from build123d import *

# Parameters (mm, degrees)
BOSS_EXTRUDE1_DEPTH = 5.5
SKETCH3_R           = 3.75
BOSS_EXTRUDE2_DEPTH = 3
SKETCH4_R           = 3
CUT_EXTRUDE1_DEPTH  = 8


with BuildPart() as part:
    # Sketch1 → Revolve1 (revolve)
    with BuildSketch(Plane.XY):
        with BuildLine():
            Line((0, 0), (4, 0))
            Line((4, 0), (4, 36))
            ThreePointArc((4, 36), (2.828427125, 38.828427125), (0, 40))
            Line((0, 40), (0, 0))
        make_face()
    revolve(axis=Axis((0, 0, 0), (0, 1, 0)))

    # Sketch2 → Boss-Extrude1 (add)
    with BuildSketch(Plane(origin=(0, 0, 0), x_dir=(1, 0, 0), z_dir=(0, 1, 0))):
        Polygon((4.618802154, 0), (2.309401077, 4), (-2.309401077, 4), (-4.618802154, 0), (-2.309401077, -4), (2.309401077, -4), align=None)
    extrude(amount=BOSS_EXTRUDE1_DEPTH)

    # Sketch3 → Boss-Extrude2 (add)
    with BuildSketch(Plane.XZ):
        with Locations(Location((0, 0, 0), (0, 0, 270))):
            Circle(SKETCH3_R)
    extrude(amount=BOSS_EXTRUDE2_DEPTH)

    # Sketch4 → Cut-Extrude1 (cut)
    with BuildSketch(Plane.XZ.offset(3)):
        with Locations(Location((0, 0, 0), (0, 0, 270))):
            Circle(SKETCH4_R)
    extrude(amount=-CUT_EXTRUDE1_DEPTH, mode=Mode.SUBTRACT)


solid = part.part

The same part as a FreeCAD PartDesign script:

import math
import FreeCAD as App
import Part
import Sketcher
Q = App.Units.Quantity


def add_polygon(sketch, points):
    """Adds a closed chain of lines whose ends are joined by coincident constraints."""
    first, n = sketch.GeometryCount, len(points)
    for a, b in zip(points, points[1:] + points[:1]):
        sketch.addGeometry(Part.LineSegment(App.Vector(*a, 0), App.Vector(*b, 0)), False)
    for i in range(n):
        sketch.addConstraint(Sketcher.Constraint("Coincident", first + i, 2, first + (i + 1) % n, 1))

doc = App.newDocument("Part")
body = doc.addObject("PartDesign::Body", "Body")

sketch1 = body.newObject("Sketcher::SketchObject", "Sketch")
sketch1.AttachmentSupport = (doc.getObject("XY_Plane"), [""])
sketch1.MapMode = "FlatFace"
sketch1.addGeometry(Part.LineSegment(App.Vector(0, 0, 0), App.Vector(4, 0, 0)), False)
sketch1.addGeometry(Part.LineSegment(App.Vector(4, 0, 0), App.Vector(4, 36, 0)), False)
sketch1.addGeometry(Part.ArcOfCircle(Part.Circle(App.Vector(0, 36, 0), App.Vector(0, 0, 1), 4), math.radians(0), math.radians(90)), False)
sketch1.addGeometry(Part.LineSegment(App.Vector(0, 40, 0), App.Vector(0, 0, 0)), False)
sketch1.addConstraint(Sketcher.Constraint("Coincident", 0, 2, 1, 1))
sketch1.addConstraint(Sketcher.Constraint("Tangent", 1, 2, 2, 1))
sketch1.addConstraint(Sketcher.Constraint("Coincident", 2, 2, 3, 1))
sketch1.addConstraint(Sketcher.Constraint("Coincident", 3, 2, 0, 1))
sketch1.addConstraint(Sketcher.Constraint("Horizontal", 0))
sketch1.addConstraint(Sketcher.Constraint("Vertical", 1))
sketch1.addConstraint(Sketcher.Constraint("Vertical", 3))
sketch1.addConstraint(Sketcher.Constraint("Coincident", 3, 2, -1, 1))
sketch1.addConstraint(Sketcher.Constraint("PointOnObject", 2, 3, -2))
sketch1.addConstraint(Sketcher.Constraint("Radius", 2, 4.0))
sketch1.addConstraint(Sketcher.Constraint("DistanceY", 1, 1, 1, 2, 36.0))
revolution = body.newObject("PartDesign::Revolution", "Revolution")
revolution.Profile = sketch1
revolution.ReferenceAxis = (sketch1, ["V_Axis"])
revolution.Angle = 360

sketch2 = body.newObject("Sketcher::SketchObject", "Sketch001")
sketch2.AttachmentSupport = (doc.getObject("XZ_Plane"), [""])
sketch2.MapMode = "FlatFace"
add_polygon(sketch2, [(4.6, 0), (2.3, -4), (-2.3, -4), (-4.6, 0), (-2.3, 4), (2.3, 4)])
sketch2.addConstraint(Sketcher.Constraint("Horizontal", 1))
sketch2.addConstraint(Sketcher.Constraint("Horizontal", 4))
sketch2.addConstraint(Sketcher.Constraint("Symmetric", 0, 2, 3, 2, -1, 1))
sketch2.addConstraint(Sketcher.Constraint("Symmetric", 2, 2, 5, 2, -1, 1))
sketch2.addConstraint(Sketcher.Constraint("PointOnObject", 2, 2, -1))
sketch2.addConstraint(Sketcher.Constraint("Parallel", 2, 5))
sketch2.addConstraint(Sketcher.Constraint("Vertical", 1, 2, 3, 2))
sketch2.addConstraint(Sketcher.Constraint("Angle", 0, Q("-120 deg")))
sketch2.addConstraint(Sketcher.Constraint("DistanceY", 0, 2, -1, 1, 4.0))
sketch2.addConstraint(Sketcher.Constraint("DistanceX", -1, 1, 0, 2, 2.309401))
pad1 = body.newObject("PartDesign::Pad", "Pad")
pad1.Profile = sketch2
pad1.Length = 5.5
pad1.Reversed = True

sketch3 = body.newObject("Sketcher::SketchObject", "Sketch002")
sketch3.AttachmentSupport = (doc.getObject("XZ_Plane"), [""])
sketch3.MapMode = "FlatFace"
sketch3.addGeometry(Part.Circle(App.Vector(0, 0, 0), App.Vector(0, 0, 1), 3.8), False)
sketch3.addConstraint(Sketcher.Constraint("Coincident", 0, 3, -1, 1))
sketch3.addConstraint(Sketcher.Constraint("Diameter", 0, 7.5))
pad2 = body.newObject("PartDesign::Pad", "Pad001")
pad2.Profile = sketch3
pad2.Length = 3

sketch4 = body.newObject("Sketcher::SketchObject", "Sketch003")
sketch4.AttachmentSupport = (doc.getObject("XZ_Plane"), [""])
sketch4.MapMode = "FlatFace"
sketch4.AttachmentOffset = App.Placement(App.Vector(0, 0, 3), App.Rotation())
sketch4.addGeometry(Part.Circle(App.Vector(0, 0, 0), App.Vector(0, 0, 1), 3), False)
sketch4.addConstraint(Sketcher.Constraint("Coincident", 0, 3, -1, 1))
sketch4.addConstraint(Sketcher.Constraint("Diameter", 0, 6.0))
pocket1 = body.newObject("PartDesign::Pocket", "Pocket")
pocket1.Profile = sketch4
pocket1.Length = 8

doc.recompute()
